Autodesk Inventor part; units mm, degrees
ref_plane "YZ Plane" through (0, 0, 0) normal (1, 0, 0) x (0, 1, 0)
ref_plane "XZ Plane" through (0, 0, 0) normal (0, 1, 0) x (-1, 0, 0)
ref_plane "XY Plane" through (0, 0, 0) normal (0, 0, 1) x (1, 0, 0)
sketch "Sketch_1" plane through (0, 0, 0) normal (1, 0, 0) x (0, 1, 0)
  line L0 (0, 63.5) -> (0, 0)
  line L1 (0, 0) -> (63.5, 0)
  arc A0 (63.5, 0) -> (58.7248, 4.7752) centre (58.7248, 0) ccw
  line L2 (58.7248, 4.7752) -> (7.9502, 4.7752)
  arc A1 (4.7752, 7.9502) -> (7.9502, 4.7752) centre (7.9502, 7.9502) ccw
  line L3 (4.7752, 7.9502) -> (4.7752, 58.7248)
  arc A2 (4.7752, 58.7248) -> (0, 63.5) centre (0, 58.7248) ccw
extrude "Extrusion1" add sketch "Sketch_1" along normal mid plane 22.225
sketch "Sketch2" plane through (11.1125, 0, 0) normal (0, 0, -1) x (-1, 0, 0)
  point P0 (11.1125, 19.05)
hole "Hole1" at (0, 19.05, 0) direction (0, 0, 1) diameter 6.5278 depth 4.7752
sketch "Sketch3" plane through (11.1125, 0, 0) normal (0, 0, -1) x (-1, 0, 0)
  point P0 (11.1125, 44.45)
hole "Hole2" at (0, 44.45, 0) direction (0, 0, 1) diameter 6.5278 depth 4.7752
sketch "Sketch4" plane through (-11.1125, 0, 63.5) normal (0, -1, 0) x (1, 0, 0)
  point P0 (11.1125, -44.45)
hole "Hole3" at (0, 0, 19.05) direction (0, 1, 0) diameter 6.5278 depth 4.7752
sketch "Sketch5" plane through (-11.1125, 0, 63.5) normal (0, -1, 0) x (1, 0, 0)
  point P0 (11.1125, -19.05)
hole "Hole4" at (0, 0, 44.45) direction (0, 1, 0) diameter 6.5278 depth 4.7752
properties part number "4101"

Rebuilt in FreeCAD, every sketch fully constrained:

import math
import FreeCAD as App
import Part
import Sketcher

V = App.Vector
Q = App.Units.Quantity

doc = App.newDocument("Part")
body = doc.addObject("PartDesign::Body", "Body")

# Sketch on YZ plane
sketch1 = doc.addObject("Sketcher::SketchObject", "Sketch")
body.addObject(sketch1)
sketch1.AttachmentSupport = (doc.YZ_Plane, [""])
sketch1.MapMode = "FlatFace"
sketch1.addGeometry([
    Part.ArcOfCircle(Part.Circle(V(0, 58.7, 0), V(0, 0, 1), 4.8), math.radians(0), math.radians(90)),  # 0
    Part.LineSegment(V(0, 63.5, 0), V(0, 0, 0)),  # 1
    Part.LineSegment(V(0, 0, 0), V(63.5, 0, 0)),  # 2
    Part.ArcOfCircle(Part.Circle(V(58.7, 0, 0), V(0, 0, 1), 4.8), math.radians(0), math.radians(90)),  # 3
    Part.LineSegment(V(58.7, 4.8, 0), V(8, 4.8, 0)),  # 4
    Part.ArcOfCircle(Part.Circle(V(8, 8, 0), V(0, 0, 1), 3.2), math.radians(180), math.radians(270)),  # 5
    Part.LineSegment(V(4.8, 8, 0), V(4.8, 58.7, 0)),  # 6
], False)
sketch1.addConstraint([
    Sketcher.Constraint("Coincident", 0, 2, 1, 1),
    Sketcher.Constraint("Coincident", 1, 2, 2, 1),
    Sketcher.Constraint("Coincident", 2, 2, 3, 1),
    Sketcher.Constraint("Tangent", 3, 2, 4, 1),
    Sketcher.Constraint("Tangent", 4, 2, 5, 2),
    Sketcher.Constraint("Tangent", 5, 1, 6, 1),
    Sketcher.Constraint("Tangent", 6, 2, 0, 1),
    Sketcher.Constraint("Vertical", 1),
    Sketcher.Constraint("Horizontal", 2),
    Sketcher.Constraint("Horizontal", 4),
    Sketcher.Constraint("Vertical", 6),
    Sketcher.Constraint("Coincident", 1, 2, -1, 1),
    Sketcher.Constraint("Equal", 0, 3),
    Sketcher.Constraint("PointOnObject", 0, 3, -2),
    Sketcher.Constraint("PointOnObject", 3, 3, -1),
    Sketcher.Constraint("Equal", 2, 1),
    Sketcher.Constraint("DistanceX", 2, 1, 2, 2, Q("2.5 in")),
    Sketcher.Constraint("Radius", 0, Q("0.188 in")),
    Sketcher.Constraint("Radius", 5, Q("0.125 in")),
])
pad1 = doc.addObject("PartDesign::Pad", "Pad")
body.addObject(pad1)
pad1.Profile = sketch1
pad1.Length = Q("0.875 in")
pad1.Midplane = True

# Sketch on XY plane
sketch2 = doc.addObject("Sketcher::SketchObject", "Sketch001")
body.addObject(sketch2)
sketch2.AttachmentSupport = (doc.XY_Plane, [""])
sketch2.MapMode = "FlatFace"
sketch2.addGeometry(Part.Circle(V(0, 19.1, 0), V(0, 0, 1), 3.3), False)
sketch2.addConstraint([
    Sketcher.Constraint("PointOnObject", 0, 3, -2),
    Sketcher.Constraint("Diameter", 0, Q("0.257 in")),
    Sketcher.Constraint("DistanceY", -1, 1, 0, 3, Q("0.75 in")),
])
doc.recompute()
hole = doc.addObject("PartDesign::Hole", "Hole")
body.addObject(hole)
hole.Profile = sketch2
hole.ThreadType = "None"
hole.Diameter = Q("0.257 in")
hole.DepthType = "Dimension"
hole.Depth = Q("0.188 in")
hole.DrillPoint = "Flat"
hole.Reversed = True

# Sketch on XY plane
sketch3 = doc.addObject("Sketcher::SketchObject", "Sketch002")
body.addObject(sketch3)
sketch3.AttachmentSupport = (doc.XY_Plane, [""])
sketch3.MapMode = "FlatFace"
sketch3.addGeometry(Part.Circle(V(0, 44.5, 0), V(0, 0, 1), 3.3), False)
sketch3.addConstraint([
    Sketcher.Constraint("PointOnObject", 0, 3, -2),
    Sketcher.Constraint("Diameter", 0, Q("0.257 in")),
    Sketcher.Constraint("DistanceY", -1, 1, 0, 3, Q("1.75 in")),
])
doc.recompute()
hole2 = doc.addObject("PartDesign::Hole", "Hole001")
body.addObject(hole2)
hole2.Profile = sketch3
hole2.ThreadType = "None"
hole2.Diameter = Q("0.257 in")
hole2.DepthType = "Dimension"
hole2.Depth = Q("0.188 in")
hole2.DrillPoint = "Flat"
hole2.Reversed = True

# Sketch on XZ plane
sketch4 = doc.addObject("Sketcher::SketchObject", "Sketch003")
body.addObject(sketch4)
sketch4.AttachmentSupport = (doc.XZ_Plane, [""])
sketch4.MapMode = "FlatFace"
sketch4.addGeometry(Part.Circle(V(0, 19.1, 0), V(0, 0, 1), 3.3), False)
sketch4.addConstraint([
    Sketcher.Constraint("PointOnObject", 0, 3, -2),
    Sketcher.Constraint("Diameter", 0, Q("0.257 in")),
    Sketcher.Constraint("DistanceY", -1, 1, 0, 3, Q("0.75 in")),
])
doc.recompute()
hole3 = doc.addObject("PartDesign::Hole", "Hole002")
body.addObject(hole3)
hole3.Profile = sketch4
hole3.ThreadType = "None"
hole3.Diameter = Q("0.257 in")
hole3.DepthType = "Dimension"
hole3.Depth = Q("0.188 in")
hole3.DrillPoint = "Flat"

# Sketch on XZ plane
sketch5 = doc.addObject("Sketcher::SketchObject", "Sketch004")
body.addObject(sketch5)
sketch5.AttachmentSupport = (doc.XZ_Plane, [""])
sketch5.MapMode = "FlatFace"
sketch5.addGeometry(Part.Circle(V(0, 44.5, 0), V(0, 0, 1), 3.3), False)
sketch5.addConstraint([
    Sketcher.Constraint("PointOnObject", 0, 3, -2),
    Sketcher.Constraint("Diameter", 0, Q("0.257 in")),
    Sketcher.Constraint("DistanceY", -1, 1, 0, 3, Q("1.75 in")),
])
doc.recompute()
hole4 = doc.addObject("PartDesign::Hole", "Hole003")
body.addObject(hole4)
hole4.Profile = sketch5
hole4.ThreadType = "None"
hole4.Diameter = Q("0.257 in")
hole4.DepthType = "Dimension"
hole4.Depth = Q("0.188 in")
hole4.DrillPoint = "Flat"

doc.recompute()
